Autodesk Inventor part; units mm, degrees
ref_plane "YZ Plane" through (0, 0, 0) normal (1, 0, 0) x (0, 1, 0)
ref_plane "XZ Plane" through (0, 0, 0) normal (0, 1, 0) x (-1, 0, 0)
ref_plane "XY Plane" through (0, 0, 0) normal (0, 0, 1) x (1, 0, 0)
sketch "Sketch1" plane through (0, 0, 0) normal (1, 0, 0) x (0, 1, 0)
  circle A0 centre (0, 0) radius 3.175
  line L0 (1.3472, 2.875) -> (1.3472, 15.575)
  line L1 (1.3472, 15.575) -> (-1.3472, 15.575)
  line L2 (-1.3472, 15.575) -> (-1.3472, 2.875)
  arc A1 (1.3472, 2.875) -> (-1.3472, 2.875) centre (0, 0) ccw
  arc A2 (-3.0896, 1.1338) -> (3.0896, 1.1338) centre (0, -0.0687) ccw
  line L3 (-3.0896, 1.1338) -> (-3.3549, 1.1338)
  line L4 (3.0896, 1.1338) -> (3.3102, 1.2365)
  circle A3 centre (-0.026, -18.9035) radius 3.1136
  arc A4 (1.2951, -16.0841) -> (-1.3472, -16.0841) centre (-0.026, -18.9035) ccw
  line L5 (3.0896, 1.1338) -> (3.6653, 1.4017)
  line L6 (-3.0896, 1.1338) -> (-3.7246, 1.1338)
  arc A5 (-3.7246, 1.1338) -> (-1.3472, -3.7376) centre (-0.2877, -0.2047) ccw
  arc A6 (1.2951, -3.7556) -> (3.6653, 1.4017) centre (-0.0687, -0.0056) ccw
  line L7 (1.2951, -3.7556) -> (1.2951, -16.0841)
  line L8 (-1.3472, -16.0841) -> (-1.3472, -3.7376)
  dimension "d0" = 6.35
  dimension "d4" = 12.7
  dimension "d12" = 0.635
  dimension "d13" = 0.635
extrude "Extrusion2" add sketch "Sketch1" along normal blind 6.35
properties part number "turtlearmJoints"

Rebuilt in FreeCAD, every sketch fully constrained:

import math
import FreeCAD as App
import Part
import Sketcher

V = App.Vector
Q = App.Units.Quantity

doc = App.newDocument("Part")
body = doc.addObject("PartDesign::Body", "Body")
body.AllowCompound = True

# Sketch on YZ plane
sketch1 = body.newObject("Sketcher::SketchObject", "Sketch")
sketch1.AttachmentSupport = (doc.getObject("YZ_Plane"), [""])
sketch1.MapMode = "FlatFace"
sketch1.addGeometry(Part.ArcOfCircle(Part.Circle(V(0, 0, 0), V(0, 0, 1), 3.175), math.radians(115.10738), math.radians(424.89262)), False)
sketch1.addGeometry(Part.LineSegment(V(1.3472, 2.875, 0), V(1.3472, 15.575, 0)), False)
sketch1.addGeometry(Part.LineSegment(V(1.3472, 15.575, 0), V(-1.3472, 15.575, 0)), False)
sketch1.addGeometry(Part.LineSegment(V(-1.3472, 15.575, 0), V(-1.3472, 2.875, 0)), False)
sketch1.addGeometry(Part.ArcOfCircle(Part.Circle(V(0, -0.0687, 0), V(0, 0, 1), 3.315363), math.radians(158.733567), math.radians(381.266433)), False)
sketch1.addGeometry(Part.LineSegment(V(-3.0896, 1.1338, 0), V(-3.7246, 1.1338, 0)), False)
sketch1.addGeometry(Part.ArcOfCircle(Part.Circle(V(-0.2877, -0.2047, 0), V(0, 0, 1), 3.688342), math.radians(158.721584), math.radians(253.306261)), False)
sketch1.addGeometry(Part.LineSegment(V(-1.3472, -3.7376, 0), V(-1.3472, -16.0841, 0)), False)
sketch1.addGeometry(Part.ArcOfCircle(Part.Circle(V(-0.026, -18.9035, 0), V(0, 0, 1), 3.1136), math.radians(115.108274), math.radians(424.893392)), False)
sketch1.addGeometry(Part.LineSegment(V(1.2951, -16.0841, 0), V(1.2951, -3.7556, 0)), False)
sketch1.addGeometry(Part.ArcOfCircle(Part.Circle(V(-0.0687, -0.0056, 0), V(0, 0, 1), 3.990295), math.radians(-70.014685), math.radians(20.650827)), False)
sketch1.addGeometry(Part.LineSegment(V(3.6653, 1.4017, 0), V(3.310217, 1.236463, 0)), False)
sketch1.addGeometry(Part.LineSegment(V(3.3102, 1.2365, 0), V(3.0896, 1.1338, 0)), False)
sketch1.addConstraint(Sketcher.Constraint("Coincident", 0, 2, 1, 1))
sketch1.addConstraint(Sketcher.Constraint("Coincident", 1, 2, 2, 1))
sketch1.addConstraint(Sketcher.Constraint("Coincident", 2, 2, 3, 1))
sketch1.addConstraint(Sketcher.Constraint("Coincident", 3, 2, 0, 1))
sketch1.addConstraint(Sketcher.Constraint("Coincident", 4, 1, 5, 1))
sketch1.addConstraint(Sketcher.Constraint("Coincident", 5, 2, 6, 1))
sketch1.addConstraint(Sketcher.Constraint("Coincident", 6, 2, 7, 1))
sketch1.addConstraint(Sketcher.Constraint("Coincident", 7, 2, 8, 1))
sketch1.addConstraint(Sketcher.Constraint("Coincident", 8, 2, 9, 1))
sketch1.addConstraint(Sketcher.Constraint("Coincident", 9, 2, 10, 1))
sketch1.addConstraint(Sketcher.Constraint("Coincident", 10, 2, 11, 1))
sketch1.addConstraint(Sketcher.Constraint("Coincident", 11, 2, 12, 1))
sketch1.addConstraint(Sketcher.Constraint("Coincident", 12, 2, 4, 2))
sketch1.addConstraint(Sketcher.Constraint("Vertical", 1))
sketch1.addConstraint(Sketcher.Constraint("Horizontal", 2))
sketch1.addConstraint(Sketcher.Constraint("Vertical", 3))
sketch1.addConstraint(Sketcher.Constraint("Horizontal", 5))
sketch1.addConstraint(Sketcher.Constraint("Vertical", 7))
sketch1.addConstraint(Sketcher.Constraint("Vertical", 9))
sketch1.addConstraint(Sketcher.Constraint("Coincident", 0, 3, -1, 1))
sketch1.addConstraint(Sketcher.Constraint("Symmetric", 4, 1, 12, 2, -2))
sketch1.addConstraint(Sketcher.Constraint("Parallel", 11, 12))
sketch1.addConstraint(Sketcher.Constraint("Horizontal", 0, 2, 3, 2))
sketch1.addConstraint(Sketcher.Constraint("Horizontal", 7, 2, 8, 2))
sketch1.addConstraint(Sketcher.Constraint("Vertical", 3, 2, 6, 2))
sketch1.addConstraint(Sketcher.Constraint("DistanceY", 1, 1, 1, 2, Q("0.5 in")))
sketch1.addConstraint(Sketcher.Constraint("Radius", 0, Q("0.125 in")))
sketch1.addConstraint(Sketcher.Constraint("DistanceX", 5, 2, 5, 1, Q("0.025 in")))
sketch1.addConstraint(Sketcher.Constraint("Radius", 6, Q("0.1452 in")))
sketch1.addConstraint(Sketcher.Constraint("Radius", 10, Q("0.1571 in")))
sketch1.addConstraint(Sketcher.Constraint("Radius", 4, Q("3.3154 mm")))
sketch1.addConstraint(Sketcher.Constraint("Radius", 8, Q("3.1136 mm")))
sketch1.addConstraint(Sketcher.Constraint("DistanceX", -1, 1, 8, 2, Q("0.051 in")))
sketch1.addConstraint(Sketcher.Constraint("DistanceY", 8, 3, 10, 3, Q("0.744 in")))
sketch1.addConstraint(Sketcher.Constraint("DistanceY", 8, 3, 7, 2, Q("0.111 in")))
sketch1.addConstraint(Sketcher.Constraint("DistanceY", 10, 2, 0, 2, Q("0.058 in")))
sketch1.addConstraint(Sketcher.Constraint("DistanceX", 10, 3, 10, 2, Q("0.147 in")))
sketch1.addConstraint(Sketcher.Constraint("DistanceY", 7, 2, 7, 1, Q("12.3465 mm")))
sketch1.addConstraint(Sketcher.Constraint("DistanceY", 9, 1, 9, 2, Q("12.3285 mm")))
sketch1.addConstraint(Sketcher.Constraint("DistanceY", 4, 3, -1, 1, Q("0.0027 in")))
sketch1.addConstraint(Sketcher.Constraint("DistanceX", 4, 1, 3, 2, Q("0.0686 in")))
sketch1.addConstraint(Sketcher.Constraint("DistanceY", 11, 2, 10, 2, Q("0.0065 in")))
pad1 = body.newObject("PartDesign::Pad", "Pad")
pad1.Profile = sketch1
pad1.Length = Q("0.25 in")

doc.recompute()
